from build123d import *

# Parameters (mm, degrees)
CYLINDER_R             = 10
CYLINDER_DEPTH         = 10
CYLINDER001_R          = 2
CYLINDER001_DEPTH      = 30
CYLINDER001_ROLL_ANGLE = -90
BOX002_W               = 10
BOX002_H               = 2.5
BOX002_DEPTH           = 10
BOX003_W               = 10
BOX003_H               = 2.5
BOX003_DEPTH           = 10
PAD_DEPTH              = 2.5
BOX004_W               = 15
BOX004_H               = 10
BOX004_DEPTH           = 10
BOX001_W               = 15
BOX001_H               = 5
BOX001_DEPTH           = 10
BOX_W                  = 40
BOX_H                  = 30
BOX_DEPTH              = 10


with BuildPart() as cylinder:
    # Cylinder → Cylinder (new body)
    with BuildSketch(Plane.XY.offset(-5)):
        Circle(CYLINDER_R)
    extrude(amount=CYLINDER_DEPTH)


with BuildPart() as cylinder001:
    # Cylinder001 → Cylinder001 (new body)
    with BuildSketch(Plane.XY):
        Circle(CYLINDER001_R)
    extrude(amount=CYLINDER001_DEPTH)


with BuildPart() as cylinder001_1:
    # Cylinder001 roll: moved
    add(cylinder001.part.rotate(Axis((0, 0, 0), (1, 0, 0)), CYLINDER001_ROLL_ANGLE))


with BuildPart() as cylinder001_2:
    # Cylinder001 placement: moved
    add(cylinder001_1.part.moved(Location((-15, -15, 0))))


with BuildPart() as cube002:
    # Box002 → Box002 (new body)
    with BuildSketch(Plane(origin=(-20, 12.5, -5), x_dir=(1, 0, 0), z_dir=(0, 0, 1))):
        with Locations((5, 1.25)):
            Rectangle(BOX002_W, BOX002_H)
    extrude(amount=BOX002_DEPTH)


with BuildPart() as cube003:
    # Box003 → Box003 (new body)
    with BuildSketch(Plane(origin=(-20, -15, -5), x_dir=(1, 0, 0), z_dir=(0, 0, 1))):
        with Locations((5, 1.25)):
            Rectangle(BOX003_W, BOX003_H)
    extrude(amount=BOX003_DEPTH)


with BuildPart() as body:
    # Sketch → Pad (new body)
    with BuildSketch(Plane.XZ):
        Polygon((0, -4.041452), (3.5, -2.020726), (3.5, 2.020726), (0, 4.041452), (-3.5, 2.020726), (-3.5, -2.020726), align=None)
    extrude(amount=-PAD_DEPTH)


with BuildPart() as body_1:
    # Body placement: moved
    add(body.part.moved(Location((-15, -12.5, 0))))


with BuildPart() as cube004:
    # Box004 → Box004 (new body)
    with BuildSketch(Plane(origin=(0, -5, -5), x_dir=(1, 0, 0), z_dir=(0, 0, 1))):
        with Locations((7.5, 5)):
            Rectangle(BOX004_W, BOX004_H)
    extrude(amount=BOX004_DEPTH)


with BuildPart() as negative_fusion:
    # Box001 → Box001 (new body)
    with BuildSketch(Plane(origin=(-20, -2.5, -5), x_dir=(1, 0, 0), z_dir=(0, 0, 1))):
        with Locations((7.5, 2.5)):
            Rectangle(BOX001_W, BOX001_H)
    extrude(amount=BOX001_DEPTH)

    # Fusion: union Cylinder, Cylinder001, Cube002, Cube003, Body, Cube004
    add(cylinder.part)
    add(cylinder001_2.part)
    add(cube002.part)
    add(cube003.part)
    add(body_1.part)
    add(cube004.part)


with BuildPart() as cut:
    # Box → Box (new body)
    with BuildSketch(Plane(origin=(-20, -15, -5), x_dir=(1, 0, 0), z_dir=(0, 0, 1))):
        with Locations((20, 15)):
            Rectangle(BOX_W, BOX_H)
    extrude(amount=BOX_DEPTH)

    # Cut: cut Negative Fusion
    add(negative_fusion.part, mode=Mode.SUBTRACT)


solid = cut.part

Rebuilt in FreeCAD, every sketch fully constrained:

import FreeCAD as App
import Part
import Sketcher

V = App.Vector
Q = App.Units.Quantity


def add_polygon(sketch, points):
    """Adds a closed chain of lines whose ends are joined by coincident constraints."""
    first, n = sketch.GeometryCount, len(points)
    for a, b in zip(points, points[1:] + points[:1]):
        sketch.addGeometry(Part.LineSegment(App.Vector(*a, 0), App.Vector(*b, 0)), False)
    for i in range(n):
        sketch.addConstraint(Sketcher.Constraint("Coincident", first + i, 2, first + (i + 1) % n, 1))

doc = App.newDocument("Part")
body = doc.addObject("PartDesign::Body", "Body")

sketch1 = body.newObject("Sketcher::SketchObject", "Sketch")
sketch1.AttachmentSupport = (doc.getObject("XY_Plane"), [""])
sketch1.MapMode = "FlatFace"
sketch1.AttachmentOffset = App.Placement(V(0, 0, -5), App.Rotation())
sketch1.addGeometry(Part.Circle(V(0, 0, 0), V(0, 0, 1), 10), False)
sketch1.addConstraint([
    Sketcher.Constraint("Coincident", 0, 3, -1, 1),
    Sketcher.Constraint("Diameter", 0, Q("20 mm")),
])
pad1 = body.newObject("PartDesign::Pad", "Pad")
pad1.Profile = sketch1
pad1.Length = 10
body2 = doc.addObject("PartDesign::Body", "Body001")

sketch2 = body2.newObject("Sketcher::SketchObject", "Sketch001")
sketch2.AttachmentSupport = (doc.getObject("XY_Plane001"), [""])
sketch2.MapMode = "FlatFace"
sketch2.addGeometry(Part.Circle(V(0, 0, 0), V(0, 0, 1), 2), False)
sketch2.addConstraint([
    Sketcher.Constraint("Coincident", 0, 3, -1, 1),
    Sketcher.Constraint("Diameter", 0, Q("4 mm")),
])
pad2 = body2.newObject("PartDesign::Pad", "Pad001")
pad2.Profile = sketch2
pad2.Length = 30
body3 = doc.addObject("PartDesign::Body", "Body002")
doc.recompute()

body2.Placement = App.Placement(V(0, 0, 0), App.Rotation(V(1, 0, 0), 270))
boolean = body3.newObject("PartDesign::Boolean", "Boolean")
boolean.Type = "Fuse"
boolean.addObjects([body2])
body4 = doc.addObject("PartDesign::Body", "Body003")
doc.recompute()

body3.Placement = App.Placement(V(-15, -15, 0), App.Rotation(V(0, 0, 1), 0))
boolean2 = body4.newObject("PartDesign::Boolean", "Boolean001")
boolean2.Type = "Fuse"
boolean2.addObjects([body3])
body5 = doc.addObject("PartDesign::Body", "Body004")

sketch3 = body5.newObject("Sketcher::SketchObject", "Sketch002")
sketch3.AttachmentSupport = (doc.getObject("XY_Plane004"), [""])
sketch3.MapMode = "FlatFace"
sketch3.AttachmentOffset = App.Placement(V(0, 0, -5), App.Rotation())
add_polygon(sketch3, [(-20, 15), (-20, 12.5), (-10, 12.5), (-10, 15)])
sketch3.addConstraint([
    Sketcher.Constraint("Vertical", 0),
    Sketcher.Constraint("Horizontal", 1),
    Sketcher.Constraint("Vertical", 2),
    Sketcher.Constraint("Horizontal", 3),
    Sketcher.Constraint("DistanceX", 1, 1, 1, 2, Q("10 mm")),
    Sketcher.Constraint("DistanceY", 0, 2, 0, 1, Q("2.5 mm")),
    Sketcher.Constraint("DistanceX", 0, 2, -1, 1, Q("20 mm")),
    Sketcher.Constraint("DistanceY", -1, 1, 2, 2, Q("15 mm")),
])
pad3 = body5.newObject("PartDesign::Pad", "Pad002")
pad3.Profile = sketch3
pad3.Length = 10
body6 = doc.addObject("PartDesign::Body", "Body005")

sketch4 = body6.newObject("Sketcher::SketchObject", "Sketch003")
sketch4.AttachmentSupport = (doc.getObject("XY_Plane005"), [""])
sketch4.MapMode = "FlatFace"
sketch4.AttachmentOffset = App.Placement(V(0, 0, -5), App.Rotation())
add_polygon(sketch4, [(-20, -12.5), (-20, -15), (-10, -15), (-10, -12.5)])
sketch4.addConstraint([
    Sketcher.Constraint("Vertical", 0),
    Sketcher.Constraint("Horizontal", 1),
    Sketcher.Constraint("Vertical", 2),
    Sketcher.Constraint("Horizontal", 3),
    Sketcher.Constraint("DistanceX", 1, 1, 1, 2, Q("10 mm")),
    Sketcher.Constraint("DistanceY", 0, 2, 0, 1, Q("2.5 mm")),
    Sketcher.Constraint("DistanceX", 0, 2, -1, 1, Q("20 mm")),
    Sketcher.Constraint("DistanceY", 0, 2, -1, 1, Q("15 mm")),
])
pad4 = body6.newObject("PartDesign::Pad", "Pad003")
pad4.Profile = sketch4
pad4.Length = 10
body7 = doc.addObject("PartDesign::Body", "Body006")

sketch5 = body7.newObject("Sketcher::SketchObject", "Sketch004")
sketch5.AttachmentSupport = (doc.getObject("XZ_Plane006"), [""])
sketch5.MapMode = "FlatFace"
add_polygon(sketch5, [(0, -4), (3.5, -2), (3.5, 2), (0, 4), (-3.5, 2), (-3.5, -2)])
sketch5.addConstraint([
    Sketcher.Constraint("Vertical", 1),
    Sketcher.Constraint("Vertical", 4),
    Sketcher.Constraint("Symmetric", 0, 2, 3, 2, -1, 1),
    Sketcher.Constraint("Symmetric", 2, 2, 5, 2, -1, 1),
    Sketcher.Constraint("PointOnObject", 2, 2, -2),
    Sketcher.Constraint("Parallel", 2, 5),
    Sketcher.Constraint("Horizontal", 1, 2, 3, 2),
    Sketcher.Constraint("Angle", 0, Q("30.000001 deg")),
    Sketcher.Constraint("DistanceX", 3, 2, 1, 2, Q("7 mm")),
    Sketcher.Constraint("DistanceY", 1, 1, 1, 2, Q("4.041452 mm")),
])
pad5 = body7.newObject("PartDesign::Pad", "Pad004")
pad5.Profile = sketch5
pad5.Length = 2.5
pad5.Reversed = True
body8 = doc.addObject("PartDesign::Body", "Body007")
doc.recompute()

body7.Placement = App.Placement(V(-15, -12.5, 0), App.Rotation(V(0, 0, 1), 0))
boolean3 = body8.newObject("PartDesign::Boolean", "Boolean002")
boolean3.Type = "Fuse"
boolean3.addObjects([body7])
body9 = doc.addObject("PartDesign::Body", "Body008")

sketch6 = body9.newObject("Sketcher::SketchObject", "Sketch005")
sketch6.AttachmentSupport = (doc.getObject("XY_Plane008"), [""])
sketch6.MapMode = "FlatFace"
sketch6.AttachmentOffset = App.Placement(V(0, 0, -5), App.Rotation())
add_polygon(sketch6, [(0, 5), (0, -5), (15, -5), (15, 5)])
sketch6.addConstraint([
    Sketcher.Constraint("Vertical", 0),
    Sketcher.Constraint("Horizontal", 1),
    Sketcher.Constraint("Vertical", 2),
    Sketcher.Constraint("Horizontal", 3),
    Sketcher.Constraint("Symmetric", 0, 2, 3, 2, -1, 1),
    Sketcher.Constraint("DistanceX", 1, 1, 1, 2, Q("15 mm")),
    Sketcher.Constraint("DistanceY", 0, 2, 0, 1, Q("10 mm")),
])
pad6 = body9.newObject("PartDesign::Pad", "Pad005")
pad6.Profile = sketch6
pad6.Length = 10
body10 = doc.addObject("PartDesign::Body", "Body009")

sketch7 = body10.newObject("Sketcher::SketchObject", "Sketch006")
sketch7.AttachmentSupport = (doc.getObject("XY_Plane009"), [""])
sketch7.MapMode = "FlatFace"
sketch7.AttachmentOffset = App.Placement(V(0, 0, -5), App.Rotation())
add_polygon(sketch7, [(-20, 2), (-20, -2), (-5, -2), (-5, 2)])
sketch7.addConstraint([
    Sketcher.Constraint("Vertical", 0),
    Sketcher.Constraint("Horizontal", 1),
    Sketcher.Constraint("Vertical", 2),
    Sketcher.Constraint("Horizontal", 3),
    Sketcher.Constraint("DistanceX", 1, 1, 1, 2, Q("15 mm")),
    Sketcher.Constraint("DistanceY", 0, 2, 0, 1, Q("5 mm")),
    Sketcher.Constraint("DistanceX", 0, 2, -1, 1, Q("20 mm")),
    Sketcher.Constraint("DistanceY", 0, 2, -1, 1, Q("2.5 mm")),
])
pad7 = body10.newObject("PartDesign::Pad", "Pad006")
pad7.Profile = sketch7
pad7.Length = 10
doc.recompute()

boolean4 = body10.newObject("PartDesign::Boolean", "Boolean003")
boolean4.Type = "Fuse"
boolean4.addObjects([body])
doc.recompute()

boolean5 = body10.newObject("PartDesign::Boolean", "Boolean004")
boolean5.Type = "Fuse"
boolean5.addObjects([body4])
doc.recompute()

boolean6 = body10.newObject("PartDesign::Boolean", "Boolean005")
boolean6.Type = "Fuse"
boolean6.addObjects([body5])
doc.recompute()

boolean7 = body10.newObject("PartDesign::Boolean", "Boolean006")
boolean7.Type = "Fuse"
boolean7.addObjects([body6])
doc.recompute()

boolean8 = body10.newObject("PartDesign::Boolean", "Boolean007")
boolean8.Type = "Fuse"
boolean8.addObjects([body8])
doc.recompute()

boolean9 = body10.newObject("PartDesign::Boolean", "Boolean008")
boolean9.Type = "Fuse"
boolean9.addObjects([body9])
body11 = doc.addObject("PartDesign::Body", "Body010")

sketch8 = body11.newObject("Sketcher::SketchObject", "Sketch007")
sketch8.AttachmentSupport = (doc.getObject("XY_Plane010"), [""])
sketch8.MapMode = "FlatFace"
sketch8.AttachmentOffset = App.Placement(V(0, 0, -5), App.Rotation())
add_polygon(sketch8, [(-20, 15), (-20, -15), (20, -15), (20, 15)])
sketch8.addConstraint([
    Sketcher.Constraint("Vertical", 0),
    Sketcher.Constraint("Horizontal", 1),
    Sketcher.Constraint("Vertical", 2),
    Sketcher.Constraint("Horizontal", 3),
    Sketcher.Constraint("Symmetric", 0, 2, 2, 2, -1, 1),
    Sketcher.Constraint("DistanceX", 1, 1, 1, 2, Q("40 mm")),
    Sketcher.Constraint("DistanceY", 0, 2, 0, 1, Q("30 mm")),
])
pad8 = body11.newObject("PartDesign::Pad", "Pad007")
pad8.Profile = sketch8
pad8.Length = 10
doc.recompute()

boolean10 = body11.newObject("PartDesign::Boolean", "Boolean009")
boolean10.Type = "Cut"
boolean10.addObjects([body10])

doc.recompute()
